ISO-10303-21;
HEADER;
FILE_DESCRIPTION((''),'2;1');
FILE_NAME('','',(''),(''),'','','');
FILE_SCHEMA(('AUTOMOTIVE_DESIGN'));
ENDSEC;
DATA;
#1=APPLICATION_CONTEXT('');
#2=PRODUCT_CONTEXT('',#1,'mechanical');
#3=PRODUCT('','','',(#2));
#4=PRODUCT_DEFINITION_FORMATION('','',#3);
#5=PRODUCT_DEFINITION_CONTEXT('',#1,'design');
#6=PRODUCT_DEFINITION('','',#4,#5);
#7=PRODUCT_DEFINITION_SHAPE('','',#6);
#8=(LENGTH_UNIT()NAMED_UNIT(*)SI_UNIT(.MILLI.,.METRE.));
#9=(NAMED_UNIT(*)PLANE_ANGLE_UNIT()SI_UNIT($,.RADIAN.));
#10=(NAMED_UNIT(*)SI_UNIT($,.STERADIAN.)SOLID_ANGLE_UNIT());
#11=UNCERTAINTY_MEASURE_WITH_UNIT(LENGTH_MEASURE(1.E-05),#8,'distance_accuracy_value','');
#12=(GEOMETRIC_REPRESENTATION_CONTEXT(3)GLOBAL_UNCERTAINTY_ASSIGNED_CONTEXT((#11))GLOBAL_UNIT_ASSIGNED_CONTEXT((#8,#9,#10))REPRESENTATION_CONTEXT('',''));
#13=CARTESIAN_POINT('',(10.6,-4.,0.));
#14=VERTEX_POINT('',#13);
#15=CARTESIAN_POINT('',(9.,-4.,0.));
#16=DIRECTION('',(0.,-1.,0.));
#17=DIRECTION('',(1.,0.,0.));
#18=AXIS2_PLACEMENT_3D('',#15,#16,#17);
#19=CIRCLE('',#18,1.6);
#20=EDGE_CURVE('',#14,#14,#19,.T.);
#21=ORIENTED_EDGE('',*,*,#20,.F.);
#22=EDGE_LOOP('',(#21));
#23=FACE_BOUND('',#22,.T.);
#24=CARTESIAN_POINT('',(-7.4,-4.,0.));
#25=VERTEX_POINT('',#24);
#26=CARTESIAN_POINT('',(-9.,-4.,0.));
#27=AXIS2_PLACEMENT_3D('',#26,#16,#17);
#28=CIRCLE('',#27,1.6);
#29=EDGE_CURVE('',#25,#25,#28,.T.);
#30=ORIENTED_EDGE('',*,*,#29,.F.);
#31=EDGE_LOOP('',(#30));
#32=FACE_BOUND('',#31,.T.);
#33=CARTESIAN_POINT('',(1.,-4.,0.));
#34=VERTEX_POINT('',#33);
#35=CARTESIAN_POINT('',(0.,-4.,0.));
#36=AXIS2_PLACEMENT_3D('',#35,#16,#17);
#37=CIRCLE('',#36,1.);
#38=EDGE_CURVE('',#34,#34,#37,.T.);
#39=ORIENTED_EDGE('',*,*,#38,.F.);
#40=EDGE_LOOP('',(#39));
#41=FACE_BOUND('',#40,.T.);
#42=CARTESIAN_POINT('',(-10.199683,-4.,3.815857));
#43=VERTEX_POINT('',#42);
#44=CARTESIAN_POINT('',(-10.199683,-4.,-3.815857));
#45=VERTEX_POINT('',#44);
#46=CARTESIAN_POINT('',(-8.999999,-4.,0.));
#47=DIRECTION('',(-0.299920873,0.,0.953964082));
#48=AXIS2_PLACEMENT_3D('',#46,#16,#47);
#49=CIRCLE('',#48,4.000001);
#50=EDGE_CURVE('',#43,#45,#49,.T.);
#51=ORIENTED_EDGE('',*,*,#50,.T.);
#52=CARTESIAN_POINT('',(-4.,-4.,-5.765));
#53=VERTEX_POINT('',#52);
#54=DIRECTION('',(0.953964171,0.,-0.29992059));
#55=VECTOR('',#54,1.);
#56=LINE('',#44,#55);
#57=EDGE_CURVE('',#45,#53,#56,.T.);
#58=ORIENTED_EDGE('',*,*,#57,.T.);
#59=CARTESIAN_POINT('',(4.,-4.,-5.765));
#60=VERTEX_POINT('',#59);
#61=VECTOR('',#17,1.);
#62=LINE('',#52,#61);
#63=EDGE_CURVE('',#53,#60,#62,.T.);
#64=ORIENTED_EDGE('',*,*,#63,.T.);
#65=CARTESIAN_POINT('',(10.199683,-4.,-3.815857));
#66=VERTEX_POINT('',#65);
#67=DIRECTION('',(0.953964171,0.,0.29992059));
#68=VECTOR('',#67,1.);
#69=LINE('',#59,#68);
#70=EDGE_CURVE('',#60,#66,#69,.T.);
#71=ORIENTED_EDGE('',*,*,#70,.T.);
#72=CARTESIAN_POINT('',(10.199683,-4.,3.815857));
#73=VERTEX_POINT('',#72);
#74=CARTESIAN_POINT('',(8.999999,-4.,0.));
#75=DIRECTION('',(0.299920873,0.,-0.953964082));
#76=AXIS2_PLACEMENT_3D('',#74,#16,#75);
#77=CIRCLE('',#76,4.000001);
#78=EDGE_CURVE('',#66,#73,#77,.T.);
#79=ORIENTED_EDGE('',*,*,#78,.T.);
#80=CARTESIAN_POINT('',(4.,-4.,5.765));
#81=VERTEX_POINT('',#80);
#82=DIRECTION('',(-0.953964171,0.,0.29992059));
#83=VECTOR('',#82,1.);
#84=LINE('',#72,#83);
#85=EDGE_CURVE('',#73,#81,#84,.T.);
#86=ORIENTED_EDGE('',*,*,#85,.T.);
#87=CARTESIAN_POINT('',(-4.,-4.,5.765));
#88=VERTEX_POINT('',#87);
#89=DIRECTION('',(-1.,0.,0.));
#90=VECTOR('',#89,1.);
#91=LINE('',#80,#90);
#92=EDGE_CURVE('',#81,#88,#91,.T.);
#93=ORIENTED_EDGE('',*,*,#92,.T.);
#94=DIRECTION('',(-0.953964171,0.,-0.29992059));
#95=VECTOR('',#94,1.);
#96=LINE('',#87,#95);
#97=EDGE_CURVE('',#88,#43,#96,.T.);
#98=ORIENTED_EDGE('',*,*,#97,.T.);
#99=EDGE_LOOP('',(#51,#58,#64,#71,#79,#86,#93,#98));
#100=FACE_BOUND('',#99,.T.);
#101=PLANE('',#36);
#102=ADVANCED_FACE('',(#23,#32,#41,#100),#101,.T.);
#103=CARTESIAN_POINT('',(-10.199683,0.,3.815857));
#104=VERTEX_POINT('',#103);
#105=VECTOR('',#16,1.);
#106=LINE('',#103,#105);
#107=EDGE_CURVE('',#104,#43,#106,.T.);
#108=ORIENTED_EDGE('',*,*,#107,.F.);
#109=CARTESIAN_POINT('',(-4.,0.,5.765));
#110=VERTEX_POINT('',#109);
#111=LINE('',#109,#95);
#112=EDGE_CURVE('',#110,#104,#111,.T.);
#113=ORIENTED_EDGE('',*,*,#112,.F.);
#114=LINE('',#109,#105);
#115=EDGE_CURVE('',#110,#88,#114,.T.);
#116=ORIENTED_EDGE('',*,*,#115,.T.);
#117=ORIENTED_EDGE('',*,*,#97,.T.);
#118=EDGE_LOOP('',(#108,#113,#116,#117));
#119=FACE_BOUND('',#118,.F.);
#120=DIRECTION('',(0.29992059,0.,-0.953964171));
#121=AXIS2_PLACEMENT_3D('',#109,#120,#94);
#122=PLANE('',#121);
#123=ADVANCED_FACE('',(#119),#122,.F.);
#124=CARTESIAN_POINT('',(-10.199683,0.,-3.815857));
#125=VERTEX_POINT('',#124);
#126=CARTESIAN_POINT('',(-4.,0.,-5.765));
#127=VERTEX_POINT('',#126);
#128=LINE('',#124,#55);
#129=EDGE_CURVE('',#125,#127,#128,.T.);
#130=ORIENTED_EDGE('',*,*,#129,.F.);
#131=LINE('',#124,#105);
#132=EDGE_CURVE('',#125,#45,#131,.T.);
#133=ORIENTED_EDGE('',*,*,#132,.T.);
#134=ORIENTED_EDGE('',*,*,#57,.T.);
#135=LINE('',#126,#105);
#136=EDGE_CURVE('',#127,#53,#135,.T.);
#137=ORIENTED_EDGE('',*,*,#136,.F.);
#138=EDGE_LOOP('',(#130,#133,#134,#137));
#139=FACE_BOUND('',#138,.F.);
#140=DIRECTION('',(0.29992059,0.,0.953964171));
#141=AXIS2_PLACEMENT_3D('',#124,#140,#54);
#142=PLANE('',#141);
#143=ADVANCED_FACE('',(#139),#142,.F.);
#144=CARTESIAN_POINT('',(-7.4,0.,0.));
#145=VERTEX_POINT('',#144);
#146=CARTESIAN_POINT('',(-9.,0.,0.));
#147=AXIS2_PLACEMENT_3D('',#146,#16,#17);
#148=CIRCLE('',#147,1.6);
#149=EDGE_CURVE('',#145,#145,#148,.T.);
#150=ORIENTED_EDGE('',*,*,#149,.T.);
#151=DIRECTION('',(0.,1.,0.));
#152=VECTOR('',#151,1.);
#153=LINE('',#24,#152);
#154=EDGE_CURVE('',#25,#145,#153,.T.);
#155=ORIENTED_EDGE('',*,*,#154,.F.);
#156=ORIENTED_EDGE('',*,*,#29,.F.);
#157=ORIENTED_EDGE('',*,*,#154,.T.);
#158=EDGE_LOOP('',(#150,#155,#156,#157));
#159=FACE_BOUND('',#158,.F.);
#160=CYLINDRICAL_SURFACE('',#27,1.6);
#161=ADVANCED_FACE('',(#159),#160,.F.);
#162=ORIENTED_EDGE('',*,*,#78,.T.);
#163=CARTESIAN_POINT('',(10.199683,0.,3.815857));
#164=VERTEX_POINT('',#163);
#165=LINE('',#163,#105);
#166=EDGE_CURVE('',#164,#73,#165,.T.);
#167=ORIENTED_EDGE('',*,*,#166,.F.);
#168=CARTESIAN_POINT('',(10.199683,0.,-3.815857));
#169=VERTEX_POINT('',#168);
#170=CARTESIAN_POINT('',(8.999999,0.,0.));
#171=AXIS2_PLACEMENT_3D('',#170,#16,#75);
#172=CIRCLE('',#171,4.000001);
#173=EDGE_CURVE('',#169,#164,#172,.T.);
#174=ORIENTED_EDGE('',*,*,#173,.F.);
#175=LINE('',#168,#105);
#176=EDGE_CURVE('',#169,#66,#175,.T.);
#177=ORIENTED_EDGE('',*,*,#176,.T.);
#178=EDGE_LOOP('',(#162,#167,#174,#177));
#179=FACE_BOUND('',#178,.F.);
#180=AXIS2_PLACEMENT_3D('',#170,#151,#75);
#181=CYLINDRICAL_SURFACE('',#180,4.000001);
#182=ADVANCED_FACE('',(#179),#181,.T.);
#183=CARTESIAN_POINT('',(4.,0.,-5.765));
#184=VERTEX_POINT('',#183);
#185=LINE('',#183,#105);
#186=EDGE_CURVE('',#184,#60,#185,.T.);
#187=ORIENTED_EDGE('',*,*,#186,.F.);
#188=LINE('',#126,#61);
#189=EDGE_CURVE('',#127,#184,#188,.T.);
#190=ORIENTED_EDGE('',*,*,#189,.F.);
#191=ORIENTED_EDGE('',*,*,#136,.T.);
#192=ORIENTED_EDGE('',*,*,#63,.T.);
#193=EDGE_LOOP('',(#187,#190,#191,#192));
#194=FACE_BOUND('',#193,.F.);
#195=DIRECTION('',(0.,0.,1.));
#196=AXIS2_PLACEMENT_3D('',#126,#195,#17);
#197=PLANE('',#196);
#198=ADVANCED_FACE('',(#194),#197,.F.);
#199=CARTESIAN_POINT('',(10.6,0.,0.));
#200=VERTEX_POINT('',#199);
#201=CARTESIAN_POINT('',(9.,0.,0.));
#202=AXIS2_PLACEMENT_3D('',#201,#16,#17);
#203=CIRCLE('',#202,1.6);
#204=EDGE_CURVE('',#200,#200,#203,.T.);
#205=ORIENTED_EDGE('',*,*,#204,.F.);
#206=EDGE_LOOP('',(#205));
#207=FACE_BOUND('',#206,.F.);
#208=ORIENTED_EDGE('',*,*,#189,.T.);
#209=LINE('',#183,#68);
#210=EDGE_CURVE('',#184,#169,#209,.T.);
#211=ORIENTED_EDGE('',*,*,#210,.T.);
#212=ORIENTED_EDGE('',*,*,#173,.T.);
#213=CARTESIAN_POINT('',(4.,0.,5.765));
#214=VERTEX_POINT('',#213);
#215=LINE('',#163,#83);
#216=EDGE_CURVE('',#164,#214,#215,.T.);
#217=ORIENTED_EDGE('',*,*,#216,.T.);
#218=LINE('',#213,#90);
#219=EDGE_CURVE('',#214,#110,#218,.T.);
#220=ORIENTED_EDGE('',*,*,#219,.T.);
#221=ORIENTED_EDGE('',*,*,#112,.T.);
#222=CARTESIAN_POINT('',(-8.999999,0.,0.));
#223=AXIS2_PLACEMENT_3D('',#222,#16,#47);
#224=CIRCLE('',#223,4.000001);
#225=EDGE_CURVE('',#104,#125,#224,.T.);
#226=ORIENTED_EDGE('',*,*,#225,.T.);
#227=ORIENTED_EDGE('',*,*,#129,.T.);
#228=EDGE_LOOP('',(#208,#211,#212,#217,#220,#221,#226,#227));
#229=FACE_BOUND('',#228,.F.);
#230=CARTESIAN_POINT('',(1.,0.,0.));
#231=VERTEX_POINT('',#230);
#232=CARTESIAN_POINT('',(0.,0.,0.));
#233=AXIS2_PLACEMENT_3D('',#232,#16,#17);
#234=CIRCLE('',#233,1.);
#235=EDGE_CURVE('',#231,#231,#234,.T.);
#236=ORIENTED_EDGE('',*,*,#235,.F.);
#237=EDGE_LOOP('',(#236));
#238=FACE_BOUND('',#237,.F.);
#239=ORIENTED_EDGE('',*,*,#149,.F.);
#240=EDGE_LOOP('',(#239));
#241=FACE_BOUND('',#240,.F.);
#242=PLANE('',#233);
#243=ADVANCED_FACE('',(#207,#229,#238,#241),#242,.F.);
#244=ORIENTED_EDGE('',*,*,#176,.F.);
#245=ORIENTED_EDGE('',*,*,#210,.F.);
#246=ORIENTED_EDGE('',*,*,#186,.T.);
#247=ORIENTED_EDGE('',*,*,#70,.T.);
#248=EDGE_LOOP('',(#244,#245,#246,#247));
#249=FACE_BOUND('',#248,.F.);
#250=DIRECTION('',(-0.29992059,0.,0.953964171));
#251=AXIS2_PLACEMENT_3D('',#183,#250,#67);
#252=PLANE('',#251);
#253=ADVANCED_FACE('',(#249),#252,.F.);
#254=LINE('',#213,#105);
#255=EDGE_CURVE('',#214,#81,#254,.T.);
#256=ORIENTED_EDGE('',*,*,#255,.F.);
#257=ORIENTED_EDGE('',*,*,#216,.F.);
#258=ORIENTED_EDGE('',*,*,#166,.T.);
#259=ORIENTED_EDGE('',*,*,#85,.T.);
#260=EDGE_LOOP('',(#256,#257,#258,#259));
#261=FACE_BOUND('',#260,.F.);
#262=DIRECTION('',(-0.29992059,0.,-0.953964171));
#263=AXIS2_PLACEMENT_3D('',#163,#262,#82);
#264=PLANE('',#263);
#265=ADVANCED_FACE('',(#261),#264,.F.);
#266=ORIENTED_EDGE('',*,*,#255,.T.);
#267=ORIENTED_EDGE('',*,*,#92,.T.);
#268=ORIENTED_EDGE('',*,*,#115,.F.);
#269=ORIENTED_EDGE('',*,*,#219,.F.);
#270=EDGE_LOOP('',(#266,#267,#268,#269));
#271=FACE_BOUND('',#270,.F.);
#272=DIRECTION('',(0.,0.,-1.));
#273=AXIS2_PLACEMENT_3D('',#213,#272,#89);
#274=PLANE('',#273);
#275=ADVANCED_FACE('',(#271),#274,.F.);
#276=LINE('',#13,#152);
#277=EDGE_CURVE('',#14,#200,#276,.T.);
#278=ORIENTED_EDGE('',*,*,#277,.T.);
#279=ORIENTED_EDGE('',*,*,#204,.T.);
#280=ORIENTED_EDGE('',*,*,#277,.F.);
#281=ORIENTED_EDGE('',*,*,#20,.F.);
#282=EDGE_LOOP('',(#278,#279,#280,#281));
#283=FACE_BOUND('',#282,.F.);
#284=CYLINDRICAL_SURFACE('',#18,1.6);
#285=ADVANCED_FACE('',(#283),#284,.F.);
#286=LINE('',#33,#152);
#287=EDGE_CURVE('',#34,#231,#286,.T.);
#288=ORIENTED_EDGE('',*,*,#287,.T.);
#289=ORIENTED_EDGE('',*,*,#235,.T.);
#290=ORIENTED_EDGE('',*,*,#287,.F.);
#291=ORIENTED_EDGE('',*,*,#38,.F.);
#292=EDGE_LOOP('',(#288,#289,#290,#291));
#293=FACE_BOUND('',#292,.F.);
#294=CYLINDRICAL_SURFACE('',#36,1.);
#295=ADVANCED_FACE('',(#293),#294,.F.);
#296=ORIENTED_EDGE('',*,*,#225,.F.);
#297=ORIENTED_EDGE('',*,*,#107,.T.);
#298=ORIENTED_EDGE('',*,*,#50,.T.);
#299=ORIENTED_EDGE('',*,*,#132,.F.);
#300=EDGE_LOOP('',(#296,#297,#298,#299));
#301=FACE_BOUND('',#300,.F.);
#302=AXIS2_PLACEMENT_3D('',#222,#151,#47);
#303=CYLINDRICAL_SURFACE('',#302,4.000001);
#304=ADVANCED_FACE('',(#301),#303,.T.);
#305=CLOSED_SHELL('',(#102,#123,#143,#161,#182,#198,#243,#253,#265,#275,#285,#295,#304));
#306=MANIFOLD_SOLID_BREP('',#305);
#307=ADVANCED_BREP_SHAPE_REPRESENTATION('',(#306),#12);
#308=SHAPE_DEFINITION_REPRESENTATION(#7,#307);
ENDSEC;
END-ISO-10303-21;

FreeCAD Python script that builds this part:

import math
import FreeCAD as App
import Part
import Sketcher

V = App.Vector
Q = App.Units.Quantity

doc = App.newDocument("Part")
body = doc.addObject("PartDesign::Body", "Body")

# Sketch on XZ plane
sketch1 = body.newObject("Sketcher::SketchObject", "Sketch")
sketch1.AttachmentSupport = (doc.getObject("XZ_Plane"), [""])
sketch1.MapMode = "FlatFace"
sketch1.addGeometry([
    Part.LineSegment(V(-4, 5.8, 0), V(-10.2, 3.8, 0)),  # 0
    Part.ArcOfCircle(Part.Circle(V(-9, 0, 0), V(0, 0, 1), 4), math.radians(107), math.radians(253)),  # 1
    Part.LineSegment(V(-10.2, -3.8, 0), V(-4, -5.8, 0)),  # 2
    Part.LineSegment(V(-4, -5.8, 0), V(4, -5.8, 0)),  # 3
    Part.LineSegment(V(4, -5.8, 0), V(10.2, -3.8, 0)),  # 4
    Part.ArcOfCircle(Part.Circle(V(9, 0, 0), V(0, 0, 1), 4), math.radians(-73), math.radians(73)),  # 5
    Part.LineSegment(V(10.2, 3.8, 0), V(4, 5.8, 0)),  # 6
    Part.LineSegment(V(4, 5.8, 0), V(-4, 5.8, 0)),  # 7
], False)
sketch1.addConstraint([
    Sketcher.Constraint("Tangent", 0, 2, 1, 1),
    Sketcher.Constraint("Tangent", 1, 2, 2, 1),
    Sketcher.Constraint("Coincident", 2, 2, 3, 1),
    Sketcher.Constraint("Coincident", 3, 2, 4, 1),
    Sketcher.Constraint("Tangent", 4, 2, 5, 1),
    Sketcher.Constraint("Tangent", 5, 2, 6, 1),
    Sketcher.Constraint("Coincident", 6, 2, 7, 1),
    Sketcher.Constraint("Coincident", 7, 2, 0, 1),
    Sketcher.Constraint("Horizontal", 3),
    Sketcher.Constraint("Horizontal", 7),
    Sketcher.Constraint("Equal", 1, 5),
    Sketcher.Constraint("Symmetric", 1, 3, 5, 3, -1, 1),
    Sketcher.Constraint("Symmetric", 2, 2, 6, 2, -1, 1),
    Sketcher.Constraint("Symmetric", 1, 2, 4, 2, -2),
    Sketcher.Constraint("Parallel", 0, 4),
    Sketcher.Constraint("Radius", 1, Q("4.000001 mm")),
    Sketcher.Constraint("DistanceX", 3, 1, 3, 2, Q("8 mm")),
    Sketcher.Constraint("DistanceX", 1, 3, -1, 1, Q("8.999999 mm")),
    Sketcher.Constraint("DistanceY", 3, 2, 6, 2, Q("11.53 mm")),
])
pad1 = body.newObject("PartDesign::Pad", "Pad")
pad1.Profile = sketch1
pad1.Length = 4

# Sketch on XZ plane
sketch2 = body.newObject("Sketcher::SketchObject", "Sketch001")
sketch2.AttachmentSupport = (doc.getObject("XZ_Plane"), [""])
sketch2.MapMode = "FlatFace"
sketch2.AttachmentOffset = App.Placement(V(0, 0, 4), App.Rotation())
sketch2.addGeometry([
    Part.Circle(V(-9, 0, 0), V(0, 0, 1), 1.6),
    Part.Circle(V(9, 0, 0), V(0, 0, 1), 1.6),
], False)
sketch2.addConstraint([
    Sketcher.Constraint("Equal", 0, 1),
    Sketcher.Constraint("Symmetric", 0, 3, 1, 3, -1, 1),
    Sketcher.Constraint("PointOnObject", 0, 3, -1),
    Sketcher.Constraint("Diameter", 0, Q("3.2 mm")),
    Sketcher.Constraint("DistanceX", 0, 3, -1, 1, Q("9 mm")),
])
pocket1 = body.newObject("PartDesign::Pocket", "Pocket")
pocket1.Profile = sketch2
pocket1.Type = "ThroughAll"

# Sketch on XZ plane
sketch3 = body.newObject("Sketcher::SketchObject", "Sketch002")
sketch3.AttachmentSupport = (doc.getObject("XZ_Plane"), [""])
sketch3.MapMode = "FlatFace"
sketch3.AttachmentOffset = App.Placement(V(0, 0, 4), App.Rotation())
sketch3.addGeometry(Part.Circle(V(0, 0, 0), V(0, 0, 1), 1), False)
sketch3.addConstraint([
    Sketcher.Constraint("Coincident", 0, 3, -1, 1),
    Sketcher.Constraint("Diameter", 0, Q("2 mm")),
])
pocket2 = body.newObject("PartDesign::Pocket", "Pocket001")
pocket2.Profile = sketch3
pocket2.Type = "ThroughAll"

doc.recompute()
